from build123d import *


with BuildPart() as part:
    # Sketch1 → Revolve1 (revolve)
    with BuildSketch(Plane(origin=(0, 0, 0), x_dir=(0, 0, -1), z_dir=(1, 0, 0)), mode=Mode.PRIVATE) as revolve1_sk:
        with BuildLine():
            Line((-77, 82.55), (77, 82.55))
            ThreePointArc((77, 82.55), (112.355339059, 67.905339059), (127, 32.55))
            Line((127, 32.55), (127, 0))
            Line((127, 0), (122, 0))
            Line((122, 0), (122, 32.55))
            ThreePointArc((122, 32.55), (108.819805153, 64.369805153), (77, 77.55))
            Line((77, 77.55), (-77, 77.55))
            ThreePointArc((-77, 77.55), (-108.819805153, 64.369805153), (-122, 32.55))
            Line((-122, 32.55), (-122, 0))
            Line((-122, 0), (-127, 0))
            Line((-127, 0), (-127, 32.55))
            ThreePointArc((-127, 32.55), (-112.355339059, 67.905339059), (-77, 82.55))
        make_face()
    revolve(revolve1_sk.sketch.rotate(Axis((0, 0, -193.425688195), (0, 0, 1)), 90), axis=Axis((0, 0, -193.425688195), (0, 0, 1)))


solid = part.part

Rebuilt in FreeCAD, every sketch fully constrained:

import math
import FreeCAD as App
import Part
import Sketcher
from FreeCAD import Vector

doc = App.newDocument("Part")
body = doc.addObject("PartDesign::Body", "Body")

sketch1 = doc.addObject("Sketcher::SketchObject", "Sketch")
body.addObject(sketch1)
sketch1.AttachmentSupport = (doc.YZ_Plane, [""])
sketch1.MapMode = "FlatFace"
sketch1.addGeometry([
    Part.LineSegment(Vector(82.55, -77, 0), Vector(82.55, 77, 0)),
    Part.ArcOfCircle(Part.Circle(Vector(32.55, 77, 0), Vector(0, 0, 1), 50), math.radians(0), math.radians(90)),
    Part.LineSegment(Vector(32.55, 127, 0), Vector(0, 127, 0)),
    Part.LineSegment(Vector(0, 127, 0), Vector(0, 122, 0)),
    Part.LineSegment(Vector(0, 122, 0), Vector(32.55, 122, 0)),
    Part.ArcOfCircle(Part.Circle(Vector(32.55, 77, 0), Vector(0, 0, 1), 45), math.radians(0), math.radians(90)),
    Part.LineSegment(Vector(77.55, 77, 0), Vector(77.55, -77, 0)),
    Part.ArcOfCircle(Part.Circle(Vector(32.55, -77, 0), Vector(0, 0, 1), 45), math.radians(-90), math.radians(0)),
    Part.LineSegment(Vector(32.55, -122, 0), Vector(0, -122, 0)),
    Part.LineSegment(Vector(0, -122, 0), Vector(0, -127, 0)),
    Part.LineSegment(Vector(0, -127, 0), Vector(32.55, -127, 0)),
    Part.ArcOfCircle(Part.Circle(Vector(32.55, -77, 0), Vector(0, 0, 1), 50), math.radians(-90), math.radians(0)),
], False)
sketch1.addConstraint([
    Sketcher.Constraint("Tangent", 0, 2, 1, 1),
    Sketcher.Constraint("Tangent", 1, 2, 2, 1),
    Sketcher.Constraint("Coincident", 2, 2, 3, 1),
    Sketcher.Constraint("Coincident", 3, 2, 4, 1),
    Sketcher.Constraint("Tangent", 4, 2, 5, 2),
    Sketcher.Constraint("Tangent", 5, 1, 6, 1),
    Sketcher.Constraint("Tangent", 6, 2, 7, 2),
    Sketcher.Constraint("Tangent", 7, 1, 8, 1),
    Sketcher.Constraint("Coincident", 8, 2, 9, 1),
    Sketcher.Constraint("Coincident", 9, 2, 10, 1),
    Sketcher.Constraint("Tangent", 10, 2, 11, 1),
    Sketcher.Constraint("Tangent", 11, 2, 0, 1),
    Sketcher.Constraint("Vertical", 0),
    Sketcher.Constraint("Horizontal", 2),
    Sketcher.Constraint("Vertical", 3),
    Sketcher.Constraint("Horizontal", 4),
    Sketcher.Constraint("Vertical", 6),
    Sketcher.Constraint("Horizontal", 8),
    Sketcher.Constraint("Vertical", 9),
    Sketcher.Constraint("Horizontal", 10),
    Sketcher.Constraint("Coincident", 5, 3, 1, 3),
    Sketcher.Constraint("Coincident", 11, 3, 7, 3),
    Sketcher.Constraint("Equal", 5, 7),
    Sketcher.Constraint("Symmetric", 3, 2, 8, 2, -1, 1),
    Sketcher.Constraint("PointOnObject", 2, 2, -2),
    Sketcher.Constraint("Radius", 1, 50.0),
    Sketcher.Constraint("Radius", 5, 45.0),
    Sketcher.Constraint("DistanceY", 0, 1, 0, 2, 154.0),
    Sketcher.Constraint("DistanceX", 2, 2, 2, 1, 32.55),
])
revolution = doc.addObject("PartDesign::Revolution", "Revolution")
body.addObject(revolution)
revolution.Profile = sketch1
revolution.ReferenceAxis = (sketch1, ["V_Axis"])
revolution.Angle = 360

doc.recompute()
